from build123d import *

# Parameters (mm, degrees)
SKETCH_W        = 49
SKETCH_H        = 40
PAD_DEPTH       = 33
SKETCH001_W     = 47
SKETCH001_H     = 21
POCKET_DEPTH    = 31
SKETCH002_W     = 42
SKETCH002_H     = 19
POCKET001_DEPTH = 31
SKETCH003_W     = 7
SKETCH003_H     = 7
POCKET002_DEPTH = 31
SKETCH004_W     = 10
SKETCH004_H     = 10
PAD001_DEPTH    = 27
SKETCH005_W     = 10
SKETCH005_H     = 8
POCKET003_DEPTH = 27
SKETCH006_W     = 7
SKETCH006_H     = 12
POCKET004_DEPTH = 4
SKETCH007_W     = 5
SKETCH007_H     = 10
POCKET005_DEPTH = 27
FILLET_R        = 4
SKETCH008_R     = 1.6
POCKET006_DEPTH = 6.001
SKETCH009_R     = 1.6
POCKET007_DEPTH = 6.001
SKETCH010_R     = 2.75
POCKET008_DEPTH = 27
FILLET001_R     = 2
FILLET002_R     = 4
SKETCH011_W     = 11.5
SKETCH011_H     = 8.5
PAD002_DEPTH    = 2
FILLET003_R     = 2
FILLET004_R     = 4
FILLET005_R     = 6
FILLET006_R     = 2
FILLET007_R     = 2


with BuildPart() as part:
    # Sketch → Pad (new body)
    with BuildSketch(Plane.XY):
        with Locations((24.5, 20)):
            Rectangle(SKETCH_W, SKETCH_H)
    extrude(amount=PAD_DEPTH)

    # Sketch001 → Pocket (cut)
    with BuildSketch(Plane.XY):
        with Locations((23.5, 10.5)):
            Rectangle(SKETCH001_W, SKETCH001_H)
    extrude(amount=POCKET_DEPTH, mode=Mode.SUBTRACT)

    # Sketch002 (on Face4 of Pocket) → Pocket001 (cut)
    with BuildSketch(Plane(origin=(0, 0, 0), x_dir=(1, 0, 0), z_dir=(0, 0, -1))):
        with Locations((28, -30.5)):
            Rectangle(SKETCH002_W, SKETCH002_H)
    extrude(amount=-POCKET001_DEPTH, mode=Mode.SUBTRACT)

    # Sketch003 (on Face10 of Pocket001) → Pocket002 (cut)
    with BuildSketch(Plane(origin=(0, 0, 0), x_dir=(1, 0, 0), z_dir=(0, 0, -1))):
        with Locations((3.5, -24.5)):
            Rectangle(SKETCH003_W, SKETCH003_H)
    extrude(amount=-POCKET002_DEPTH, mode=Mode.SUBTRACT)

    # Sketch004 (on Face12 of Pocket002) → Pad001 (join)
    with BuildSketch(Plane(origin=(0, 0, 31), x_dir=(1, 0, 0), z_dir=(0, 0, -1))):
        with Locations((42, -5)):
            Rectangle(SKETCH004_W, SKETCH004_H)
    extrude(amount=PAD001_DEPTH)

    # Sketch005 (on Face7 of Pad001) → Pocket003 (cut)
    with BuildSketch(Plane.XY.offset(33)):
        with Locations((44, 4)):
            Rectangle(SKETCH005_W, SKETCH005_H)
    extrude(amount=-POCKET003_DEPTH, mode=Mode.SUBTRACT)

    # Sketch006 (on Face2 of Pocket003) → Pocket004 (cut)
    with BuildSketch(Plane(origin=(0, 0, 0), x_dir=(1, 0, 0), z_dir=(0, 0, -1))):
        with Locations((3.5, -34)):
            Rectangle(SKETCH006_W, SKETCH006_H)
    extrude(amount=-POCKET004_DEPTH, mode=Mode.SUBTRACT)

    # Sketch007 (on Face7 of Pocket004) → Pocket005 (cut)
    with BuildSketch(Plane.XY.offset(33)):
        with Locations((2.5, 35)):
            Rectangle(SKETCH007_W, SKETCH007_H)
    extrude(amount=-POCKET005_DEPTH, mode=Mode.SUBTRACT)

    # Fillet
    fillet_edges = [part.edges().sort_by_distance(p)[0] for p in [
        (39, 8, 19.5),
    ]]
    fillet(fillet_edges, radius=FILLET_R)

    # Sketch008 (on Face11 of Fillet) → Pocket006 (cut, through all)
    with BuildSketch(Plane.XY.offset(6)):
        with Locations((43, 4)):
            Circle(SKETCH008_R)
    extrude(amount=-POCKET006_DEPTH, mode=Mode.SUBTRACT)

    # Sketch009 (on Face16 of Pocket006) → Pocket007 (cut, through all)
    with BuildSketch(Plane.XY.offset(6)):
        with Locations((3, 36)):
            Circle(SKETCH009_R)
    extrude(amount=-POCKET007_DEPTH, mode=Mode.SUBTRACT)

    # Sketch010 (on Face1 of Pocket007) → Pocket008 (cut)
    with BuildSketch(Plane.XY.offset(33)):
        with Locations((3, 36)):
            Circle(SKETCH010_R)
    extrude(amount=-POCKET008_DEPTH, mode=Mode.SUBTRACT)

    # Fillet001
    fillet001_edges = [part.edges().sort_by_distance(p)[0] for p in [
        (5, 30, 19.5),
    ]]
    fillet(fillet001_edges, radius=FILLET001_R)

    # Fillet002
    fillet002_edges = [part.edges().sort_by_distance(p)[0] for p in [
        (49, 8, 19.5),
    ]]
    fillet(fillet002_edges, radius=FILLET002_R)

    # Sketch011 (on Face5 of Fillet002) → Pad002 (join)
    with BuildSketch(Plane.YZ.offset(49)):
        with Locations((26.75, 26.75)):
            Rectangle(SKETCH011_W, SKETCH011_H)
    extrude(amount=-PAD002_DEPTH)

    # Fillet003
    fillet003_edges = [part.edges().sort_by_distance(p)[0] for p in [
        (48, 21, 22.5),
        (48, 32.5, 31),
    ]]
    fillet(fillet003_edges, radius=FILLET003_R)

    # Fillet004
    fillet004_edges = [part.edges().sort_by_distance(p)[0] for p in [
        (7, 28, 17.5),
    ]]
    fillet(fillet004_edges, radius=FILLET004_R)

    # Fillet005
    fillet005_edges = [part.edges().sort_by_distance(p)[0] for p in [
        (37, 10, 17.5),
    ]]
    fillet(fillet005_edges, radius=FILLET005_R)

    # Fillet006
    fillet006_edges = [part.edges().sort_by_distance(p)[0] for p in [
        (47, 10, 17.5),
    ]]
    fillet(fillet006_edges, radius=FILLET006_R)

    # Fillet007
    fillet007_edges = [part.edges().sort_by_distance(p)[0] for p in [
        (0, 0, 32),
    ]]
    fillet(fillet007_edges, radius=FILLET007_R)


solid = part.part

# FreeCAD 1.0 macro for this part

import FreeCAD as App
import Part
import Sketcher

V = App.Vector


def edges_at(feature, points):
    """Names of the edges that pass closest to the given points."""
    edges = feature.Shape.Edges
    near = lambda p: min(range(len(edges)), key=lambda i: edges[i].distToShape(Part.Vertex(*p))[0])
    return sorted({f"Edge{near(p) + 1}" for p in points})

doc = App.newDocument("Part")
body = doc.addObject("PartDesign::Body", "Body")

# Sketch on XY plane
sketch1 = body.newObject("Sketcher::SketchObject", "Sketch")
sketch1.AttachmentSupport = (doc.getObject("XY_Plane"), [""])
sketch1.MapMode = "FlatFace"
sketch1.addGeometry([
    Part.LineSegment(V(0, 40, 0), V(0, 0, 0)),
    Part.LineSegment(V(0, 0, 0), V(49, 0, 0)),
    Part.LineSegment(V(49, 0, 0), V(49, 40, 0)),
    Part.LineSegment(V(49, 40, 0), V(0, 40, 0)),
], False)
sketch1.addConstraint([
    Sketcher.Constraint("Coincident", 0, 2, 1, 1),
    Sketcher.Constraint("Coincident", 1, 2, 2, 1),
    Sketcher.Constraint("Coincident", 2, 2, 3, 1),
    Sketcher.Constraint("Coincident", 3, 2, 0, 1),
    Sketcher.Constraint("Vertical", 0),
    Sketcher.Constraint("Horizontal", 1),
    Sketcher.Constraint("Vertical", 2),
    Sketcher.Constraint("Horizontal", 3),
    Sketcher.Constraint("Coincident", 0, 2, -1, 1),
    Sketcher.Constraint("DistanceX", 1, 1, 1, 2, 49.0),
    Sketcher.Constraint("DistanceY", 0, 2, 0, 1, 40.0),
])
pad1 = body.newObject("PartDesign::Pad", "Pad")
pad1.Profile = sketch1
pad1.Length = 33

# Sketch on XY plane
sketch2 = body.newObject("Sketcher::SketchObject", "Sketch001")
sketch2.AttachmentSupport = (doc.getObject("XY_Plane"), [""])
sketch2.MapMode = "FlatFace"
sketch2.addGeometry([
    Part.LineSegment(V(0, 21, 0), V(0, 0, 0)),
    Part.LineSegment(V(0, 0, 0), V(47, 0, 0)),
    Part.LineSegment(V(47, 0, 0), V(47, 21, 0)),
    Part.LineSegment(V(47, 21, 0), V(0, 21, 0)),
], False)
sketch2.addConstraint([
    Sketcher.Constraint("Coincident", 0, 2, 1, 1),
    Sketcher.Constraint("Coincident", 1, 2, 2, 1),
    Sketcher.Constraint("Coincident", 2, 2, 3, 1),
    Sketcher.Constraint("Coincident", 3, 2, 0, 1),
    Sketcher.Constraint("Vertical", 0),
    Sketcher.Constraint("Horizontal", 1),
    Sketcher.Constraint("Vertical", 2),
    Sketcher.Constraint("Horizontal", 3),
    Sketcher.Constraint("Coincident", 0, 2, -1, 1),
    Sketcher.Constraint("DistanceX", 1, 1, 1, 2, 47.0),
    Sketcher.Constraint("DistanceY", 0, 2, 0, 1, 21.0),
])
pocket1 = body.newObject("PartDesign::Pocket", "Pocket")
pocket1.Profile = sketch2
pocket1.Length = 31
pocket1.Reversed = True

# Sketch on XY plane
sketch3 = body.newObject("Sketcher::SketchObject", "Sketch002")
sketch3.AttachmentSupport = (doc.getObject("XY_Plane"), [""])
sketch3.MapMode = "FlatFace"
sketch3.addGeometry([
    Part.LineSegment(V(7, 21, 0), V(7, 40, 0)),
    Part.LineSegment(V(7, 40, 0), V(49, 40, 0)),
    Part.LineSegment(V(49, 40, 0), V(49, 21, 0)),
    Part.LineSegment(V(49, 21, 0), V(7, 21, 0)),
], False)
sketch3.addConstraint([
    Sketcher.Constraint("Coincident", 0, 2, 1, 1),
    Sketcher.Constraint("Coincident", 1, 2, 2, 1),
    Sketcher.Constraint("Coincident", 2, 2, 3, 1),
    Sketcher.Constraint("Coincident", 3, 2, 0, 1),
    Sketcher.Constraint("Vertical", 0),
    Sketcher.Constraint("Horizontal", 1),
    Sketcher.Constraint("Vertical", 2),
    Sketcher.Constraint("Horizontal", 3),
    Sketcher.Constraint("DistanceX", 1, 1, 1, 2, 42.0),
    Sketcher.Constraint("DistanceY", 0, 1, 0, 2, 19.0),
    Sketcher.Constraint("DistanceX", -1, 1, 0, 2, 7.0),
    Sketcher.Constraint("DistanceY", -1, 1, 0, 2, 40.0),
])
pocket2 = body.newObject("PartDesign::Pocket", "Pocket001")
pocket2.Profile = sketch3
pocket2.Length = 31
pocket2.Reversed = True

# Sketch on XY plane
sketch4 = body.newObject("Sketcher::SketchObject", "Sketch003")
sketch4.AttachmentSupport = (doc.getObject("XY_Plane"), [""])
sketch4.MapMode = "FlatFace"
sketch4.addGeometry([
    Part.LineSegment(V(0, 21, 0), V(0, 28, 0)),
    Part.LineSegment(V(0, 28, 0), V(7, 28, 0)),
    Part.LineSegment(V(7, 28, 0), V(7, 21, 0)),
    Part.LineSegment(V(7, 21, 0), V(0, 21, 0)),
], False)
sketch4.addConstraint([
    Sketcher.Constraint("Coincident", 0, 2, 1, 1),
    Sketcher.Constraint("Coincident", 1, 2, 2, 1),
    Sketcher.Constraint("Coincident", 2, 2, 3, 1),
    Sketcher.Constraint("Coincident", 3, 2, 0, 1),
    Sketcher.Constraint("Vertical", 0),
    Sketcher.Constraint("Horizontal", 1),
    Sketcher.Constraint("Vertical", 2),
    Sketcher.Constraint("Horizontal", 3),
    Sketcher.Constraint("PointOnObject", 0, 2, -2),
    Sketcher.Constraint("Equal", 3, 0),
    Sketcher.Constraint("DistanceX", 1, 1, 1, 2, 7.0),
    Sketcher.Constraint("DistanceY", -1, 1, 0, 2, 28.0),
])
pocket3 = body.newObject("PartDesign::Pocket", "Pocket002")
pocket3.Profile = sketch4
pocket3.Length = 31
pocket3.Reversed = True

# Sketch on XY plane
sketch5 = body.newObject("Sketcher::SketchObject", "Sketch004")
sketch5.AttachmentSupport = (doc.getObject("XY_Plane"), [""])
sketch5.MapMode = "FlatFace"
sketch5.AttachmentOffset = App.Placement(V(0, 0, 31), App.Rotation())
sketch5.addGeometry([
    Part.LineSegment(V(37, 0, 0), V(37, 10, 0)),
    Part.LineSegment(V(37, 10, 0), V(47, 10, 0)),
    Part.LineSegment(V(47, 10, 0), V(47, 0, 0)),
    Part.LineSegment(V(47, 0, 0), V(37, 0, 0)),
], False)
sketch5.addConstraint([
    Sketcher.Constraint("Coincident", 0, 2, 1, 1),
    Sketcher.Constraint("Coincident", 1, 2, 2, 1),
    Sketcher.Constraint("Coincident", 2, 2, 3, 1),
    Sketcher.Constraint("Coincident", 3, 2, 0, 1),
    Sketcher.Constraint("Vertical", 0),
    Sketcher.Constraint("Horizontal", 1),
    Sketcher.Constraint("Vertical", 2),
    Sketcher.Constraint("Horizontal", 3),
    Sketcher.Constraint("PointOnObject", 2, 2, -1),
    Sketcher.Constraint("Equal", 3, 0),
    Sketcher.Constraint("DistanceX", 1, 1, 1, 2, 10.0),
    Sketcher.Constraint("DistanceX", -1, 1, 0, 2, 37.0),
])
pad2 = body.newObject("PartDesign::Pad", "Pad001")
pad2.Profile = sketch5
pad2.Length = 27
pad2.Reversed = True

# Sketch on XY plane
sketch6 = body.newObject("Sketcher::SketchObject", "Sketch005")
sketch6.AttachmentSupport = (doc.getObject("XY_Plane"), [""])
sketch6.MapMode = "FlatFace"
sketch6.AttachmentOffset = App.Placement(V(0, 0, 33), App.Rotation())
sketch6.addGeometry([
    Part.LineSegment(V(39, 8, 0), V(39, 0, 0)),
    Part.LineSegment(V(39, 0, 0), V(49, 0, 0)),
    Part.LineSegment(V(49, 0, 0), V(49, 8, 0)),
    Part.LineSegment(V(49, 8, 0), V(39, 8, 0)),
], False)
sketch6.addConstraint([
    Sketcher.Constraint("Coincident", 0, 2, 1, 1),
    Sketcher.Constraint("Coincident", 1, 2, 2, 1),
    Sketcher.Constraint("Coincident", 2, 2, 3, 1),
    Sketcher.Constraint("Coincident", 3, 2, 0, 1),
    Sketcher.Constraint("Vertical", 0),
    Sketcher.Constraint("Horizontal", 1),
    Sketcher.Constraint("Vertical", 2),
    Sketcher.Constraint("Horizontal", 3),
    Sketcher.Constraint("PointOnObject", 0, 2, -1),
    Sketcher.Constraint("DistanceX", 1, 1, 1, 2, 10.0),
    Sketcher.Constraint("DistanceY", 0, 2, 0, 1, 8.0),
    Sketcher.Constraint("DistanceX", -1, 1, 0, 2, 39.0),
])
pocket4 = body.newObject("PartDesign::Pocket", "Pocket003")
pocket4.Profile = sketch6
pocket4.Length = 27

# Sketch on XY plane
sketch7 = body.newObject("Sketcher::SketchObject", "Sketch006")
sketch7.AttachmentSupport = (doc.getObject("XY_Plane"), [""])
sketch7.MapMode = "FlatFace"
sketch7.addGeometry([
    Part.LineSegment(V(0, 28, 0), V(0, 40, 0)),
    Part.LineSegment(V(0, 40, 0), V(7, 40, 0)),
    Part.LineSegment(V(7, 40, 0), V(7, 28, 0)),
    Part.LineSegment(V(7, 28, 0), V(0, 28, 0)),
], False)
sketch7.addConstraint([
    Sketcher.Constraint("Coincident", 0, 2, 1, 1),
    Sketcher.Constraint("Coincident", 1, 2, 2, 1),
    Sketcher.Constraint("Coincident", 2, 2, 3, 1),
    Sketcher.Constraint("Coincident", 3, 2, 0, 1),
    Sketcher.Constraint("Vertical", 0),
    Sketcher.Constraint("Horizontal", 1),
    Sketcher.Constraint("Vertical", 2),
    Sketcher.Constraint("Horizontal", 3),
    Sketcher.Constraint("PointOnObject", 0, 2, -2),
    Sketcher.Constraint("DistanceX", 1, 1, 1, 2, 7.0),
    Sketcher.Constraint("DistanceY", 0, 1, 0, 2, 12.0),
    Sketcher.Constraint("DistanceY", -1, 1, 0, 2, 40.0),
])
pocket5 = body.newObject("PartDesign::Pocket", "Pocket004")
pocket5.Profile = sketch7
pocket5.Length = 4
pocket5.Reversed = True

# Sketch on XY plane
sketch8 = body.newObject("Sketcher::SketchObject", "Sketch007")
sketch8.AttachmentSupport = (doc.getObject("XY_Plane"), [""])
sketch8.MapMode = "FlatFace"
sketch8.AttachmentOffset = App.Placement(V(0, 0, 33), App.Rotation())
sketch8.addGeometry([
    Part.LineSegment(V(0, 40, 0), V(0, 30, 0)),
    Part.LineSegment(V(0, 30, 0), V(5, 30, 0)),
    Part.LineSegment(V(5, 30, 0), V(5, 40, 0)),
    Part.LineSegment(V(5, 40, 0), V(0, 40, 0)),
], False)
sketch8.addConstraint([
    Sketcher.Constraint("Coincident", 0, 2, 1, 1),
    Sketcher.Constraint("Coincident", 1, 2, 2, 1),
    Sketcher.Constraint("Coincident", 2, 2, 3, 1),
    Sketcher.Constraint("Coincident", 3, 2, 0, 1),
    Sketcher.Constraint("Vertical", 0),
    Sketcher.Constraint("Horizontal", 1),
    Sketcher.Constraint("Vertical", 2),
    Sketcher.Constraint("Horizontal", 3),
    Sketcher.Constraint("PointOnObject", 0, 2, -2),
    Sketcher.Constraint("DistanceX", 1, 1, 1, 2, 5.0),
    Sketcher.Constraint("DistanceY", 0, 2, 0, 1, 10.0),
    Sketcher.Constraint("DistanceY", -1, 1, 0, 2, 30.0),
])
pocket6 = body.newObject("PartDesign::Pocket", "Pocket005")
pocket6.Profile = sketch8
pocket6.Length = 27
doc.recompute()

fillet = body.newObject("PartDesign::Fillet", "Fillet")
fillet.Base = (pocket6, edges_at(pocket6, [(39, 8, 19.5)]))
fillet.Radius = 4

# Sketch on XY plane
sketch9 = body.newObject("Sketcher::SketchObject", "Sketch008")
sketch9.AttachmentSupport = (doc.getObject("XY_Plane"), [""])
sketch9.MapMode = "FlatFace"
sketch9.AttachmentOffset = App.Placement(V(0, 0, 6), App.Rotation())
sketch9.addGeometry(Part.Circle(V(43, 4, 0), V(0, 0, 1), 1.6), False)
sketch9.addConstraint([
    Sketcher.Constraint("Diameter", 0, 3.2),
    Sketcher.Constraint("DistanceX", -1, 1, 0, 3, 43.0),
    Sketcher.Constraint("DistanceY", -1, 1, 0, 3, 4.0),
])
pocket7 = body.newObject("PartDesign::Pocket", "Pocket006")
pocket7.Profile = sketch9
pocket7.Type = "ThroughAll"

# Sketch on XY plane
sketch10 = body.newObject("Sketcher::SketchObject", "Sketch009")
sketch10.AttachmentSupport = (doc.getObject("XY_Plane"), [""])
sketch10.MapMode = "FlatFace"
sketch10.AttachmentOffset = App.Placement(V(0, 0, 6), App.Rotation())
sketch10.addGeometry(Part.Circle(V(3, 36, 0), V(0, 0, 1), 1.6), False)
sketch10.addConstraint([
    Sketcher.Constraint("Diameter", 0, 3.2),
    Sketcher.Constraint("DistanceX", -1, 1, 0, 3, 3.0),
    Sketcher.Constraint("DistanceY", -1, 1, 0, 3, 36.0),
])
pocket8 = body.newObject("PartDesign::Pocket", "Pocket007")
pocket8.Profile = sketch10
pocket8.Type = "ThroughAll"

# Sketch on XY plane
sketch11 = body.newObject("Sketcher::SketchObject", "Sketch010")
sketch11.AttachmentSupport = (doc.getObject("XY_Plane"), [""])
sketch11.MapMode = "FlatFace"
sketch11.AttachmentOffset = App.Placement(V(0, 0, 33), App.Rotation())
sketch11.addGeometry(Part.Circle(V(3, 36, 0), V(0, 0, 1), 2.8), False)
sketch11.addConstraint([
    Sketcher.Constraint("Diameter", 0, 5.5),
    Sketcher.Constraint("DistanceX", -1, 1, 0, 3, 3.0),
    Sketcher.Constraint("DistanceY", -1, 1, 0, 3, 36.0),
])
pocket9 = body.newObject("PartDesign::Pocket", "Pocket008")
pocket9.Profile = sketch11
pocket9.Length = 27
doc.recompute()

fillet2 = body.newObject("PartDesign::Fillet", "Fillet001")
fillet2.Base = (pocket9, edges_at(pocket9, [(5, 30, 19.5)]))
fillet2.Radius = 2
doc.recompute()

fillet3 = body.newObject("PartDesign::Fillet", "Fillet002")
fillet3.Base = (fillet2, edges_at(fillet2, [(49, 8, 19.5)]))
fillet3.Radius = 4

# Sketch on YZ plane
sketch12 = body.newObject("Sketcher::SketchObject", "Sketch011")
sketch12.AttachmentSupport = (doc.getObject("YZ_Plane"), [""])
sketch12.MapMode = "FlatFace"
sketch12.AttachmentOffset = App.Placement(V(0, 0, 49), App.Rotation())
sketch12.addGeometry([
    Part.LineSegment(V(21, 31, 0), V(21, 22, 0)),
    Part.LineSegment(V(21, 22, 0), V(32, 22, 0)),
    Part.LineSegment(V(32, 22, 0), V(32, 31, 0)),
    Part.LineSegment(V(32, 31, 0), V(21, 31, 0)),
], False)
sketch12.addConstraint([
    Sketcher.Constraint("Coincident", 0, 2, 1, 1),
    Sketcher.Constraint("Coincident", 1, 2, 2, 1),
    Sketcher.Constraint("Coincident", 2, 2, 3, 1),
    Sketcher.Constraint("Coincident", 3, 2, 0, 1),
    Sketcher.Constraint("Vertical", 0),
    Sketcher.Constraint("Horizontal", 1),
    Sketcher.Constraint("Vertical", 2),
    Sketcher.Constraint("Horizontal", 3),
    Sketcher.Constraint("DistanceX", 1, 1, 1, 2, 11.5),
    Sketcher.Constraint("DistanceY", 0, 2, 0, 1, 8.5),
    Sketcher.Constraint("DistanceX", -1, 1, 0, 2, 21.0),
    Sketcher.Constraint("DistanceY", -1, 1, 2, 2, 31.0),
])
pad3 = body.newObject("PartDesign::Pad", "Pad002")
pad3.Profile = sketch12
pad3.Length = 2
pad3.Reversed = True
doc.recompute()

fillet4 = body.newObject("PartDesign::Fillet", "Fillet003")
fillet4.Base = (pad3, edges_at(pad3, [(48, 21, 22.5), (48, 32.5, 31)]))
fillet4.Radius = 2
doc.recompute()

fillet5 = body.newObject("PartDesign::Fillet", "Fillet004")
fillet5.Base = (fillet4, edges_at(fillet4, [(7, 28, 17.5)]))
fillet5.Radius = 4
doc.recompute()

fillet6 = body.newObject("PartDesign::Fillet", "Fillet005")
fillet6.Base = (fillet5, edges_at(fillet5, [(37, 10, 17.5)]))
fillet6.Radius = 6
doc.recompute()

fillet7 = body.newObject("PartDesign::Fillet", "Fillet006")
fillet7.Base = (fillet6, edges_at(fillet6, [(47, 10, 17.5)]))
fillet7.Radius = 2
doc.recompute()

fillet8 = body.newObject("PartDesign::Fillet", "Fillet007")
fillet8.Base = (fillet7, edges_at(fillet7, [(0, 0, 32)]))
fillet8.Radius = 2

doc.recompute()
